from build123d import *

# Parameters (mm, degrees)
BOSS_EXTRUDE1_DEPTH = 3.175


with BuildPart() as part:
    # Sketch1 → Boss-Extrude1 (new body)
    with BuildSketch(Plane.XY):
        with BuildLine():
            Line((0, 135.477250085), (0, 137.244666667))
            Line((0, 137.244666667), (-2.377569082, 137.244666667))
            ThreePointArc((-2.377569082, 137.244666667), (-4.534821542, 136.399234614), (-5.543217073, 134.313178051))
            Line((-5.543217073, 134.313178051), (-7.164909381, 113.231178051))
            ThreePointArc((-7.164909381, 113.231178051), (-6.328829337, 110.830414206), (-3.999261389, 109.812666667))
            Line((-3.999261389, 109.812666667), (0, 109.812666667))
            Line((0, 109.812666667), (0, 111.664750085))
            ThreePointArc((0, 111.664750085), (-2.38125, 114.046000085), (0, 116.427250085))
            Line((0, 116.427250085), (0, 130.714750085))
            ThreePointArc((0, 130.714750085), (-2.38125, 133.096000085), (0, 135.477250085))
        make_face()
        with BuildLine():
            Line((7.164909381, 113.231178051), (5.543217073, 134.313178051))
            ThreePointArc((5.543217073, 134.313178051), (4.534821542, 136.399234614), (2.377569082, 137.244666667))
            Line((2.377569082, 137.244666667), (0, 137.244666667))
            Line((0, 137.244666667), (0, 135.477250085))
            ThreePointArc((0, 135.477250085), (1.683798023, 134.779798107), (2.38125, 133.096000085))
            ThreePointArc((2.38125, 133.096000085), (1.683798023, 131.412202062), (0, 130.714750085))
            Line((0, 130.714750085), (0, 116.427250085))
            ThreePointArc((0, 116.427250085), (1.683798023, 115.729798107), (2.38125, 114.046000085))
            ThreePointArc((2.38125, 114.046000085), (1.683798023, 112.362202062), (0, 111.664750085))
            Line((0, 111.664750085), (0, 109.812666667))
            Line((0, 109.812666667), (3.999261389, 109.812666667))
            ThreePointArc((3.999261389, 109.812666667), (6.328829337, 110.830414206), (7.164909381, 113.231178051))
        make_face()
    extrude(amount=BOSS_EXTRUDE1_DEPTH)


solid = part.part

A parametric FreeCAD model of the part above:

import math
import FreeCAD as App
import Part
import Sketcher
Q = App.Units.Quantity

doc = App.newDocument("Part")
params = doc.addObject("Spreadsheet::Sheet", "Params")
for row, (alias, value) in enumerate([
    ("sketch1_radius", "0.125 in"),
    ("sketch1_radius2", "0.09375 in"),
    ("pad1_length", "0.125 in"),
], start=1):
    params.set(f"A{row}", alias)
    params.set(f"B{row}", "=" + value)
    params.setAlias(f"B{row}", alias)

body = doc.addObject("PartDesign::Body", "Body")

# Sketch on XY plane
sketch1 = body.newObject("Sketcher::SketchObject", "Sketch")
sketch1.AttachmentSupport = (doc.getObject("XY_Plane"), [""])
sketch1.MapMode = "FlatFace"
sketch1.addGeometry([
    Part.ArcOfCircle(Part.Circle(App.Vector(-2.377569, 134.069667, 0), App.Vector(0, 0, 1), 3.175), math.radians(90), math.radians(175.601295)),  # 0
    Part.LineSegment(App.Vector(-5.543217, 134.313178, 0), App.Vector(-7.164909, 113.231178, 0)),  # 1
    Part.ArcOfCircle(Part.Circle(App.Vector(-3.999261, 112.987667, 0), App.Vector(0, 0, 1), 3.175), math.radians(175.601295), math.radians(270)),  # 2
    Part.LineSegment(App.Vector(-3.999261, 109.812667, 0), App.Vector(3.999261, 109.812667, 0)),  # 3
    Part.ArcOfCircle(Part.Circle(App.Vector(3.999261, 112.987667, 0), App.Vector(0, 0, 1), 3.175), math.radians(-90), math.radians(4.398705)),  # 4
    Part.LineSegment(App.Vector(7.164909, 113.231178, 0), App.Vector(5.543217, 134.313178, 0)),  # 5
    Part.ArcOfCircle(Part.Circle(App.Vector(2.377569, 134.069667, 0), App.Vector(0, 0, 1), 3.175), math.radians(4.398705), math.radians(90)),  # 6
    Part.LineSegment(App.Vector(2.377569, 137.244667, 0), App.Vector(-2.377569, 137.244667, 0)),  # 7
    Part.ArcOfCircle(Part.Circle(App.Vector(0, 114.046, 0), App.Vector(0, 0, 1), 2.38125), math.radians(90), math.radians(270)),  # 8
    Part.ArcOfCircle(Part.Circle(App.Vector(0, 114.046, 0), App.Vector(0, 0, 1), 2.38125), math.radians(0), math.radians(90)),  # 9
    Part.ArcOfCircle(Part.Circle(App.Vector(0, 114.046, 0), App.Vector(0, 0, 1), 2.38125), math.radians(-90), math.radians(0)),  # 10
    Part.ArcOfCircle(Part.Circle(App.Vector(0, 133.096, 0), App.Vector(0, 0, 1), 2.38125), math.radians(90), math.radians(270)),  # 11
    Part.ArcOfCircle(Part.Circle(App.Vector(0, 133.096, 0), App.Vector(0, 0, 1), 2.38125), math.radians(0), math.radians(90)),  # 12
    Part.ArcOfCircle(Part.Circle(App.Vector(0, 133.096, 0), App.Vector(0, 0, 1), 2.38125), math.radians(-90), math.radians(0)),  # 13
], False)
sketch1.addConstraint([
    Sketcher.Constraint("Tangent", 0, 2, 1, 1),
    Sketcher.Constraint("Tangent", 1, 2, 2, 1),
    Sketcher.Constraint("Tangent", 2, 2, 3, 1),
    Sketcher.Constraint("Tangent", 3, 2, 4, 1),
    Sketcher.Constraint("Tangent", 4, 2, 5, 1),
    Sketcher.Constraint("Tangent", 5, 2, 6, 1),
    Sketcher.Constraint("Tangent", 6, 2, 7, 1),
    Sketcher.Constraint("Tangent", 7, 2, 0, 1),
    Sketcher.Constraint("Tangent", 8, 1, 9, 2),
    Sketcher.Constraint("Tangent", 9, 1, 10, 2),
    Sketcher.Constraint("Tangent", 10, 1, 8, 2),
    Sketcher.Constraint("Tangent", 11, 1, 12, 2),
    Sketcher.Constraint("Tangent", 12, 1, 13, 2),
    Sketcher.Constraint("Tangent", 13, 1, 11, 2),
    Sketcher.Constraint("Horizontal", 3),
    Sketcher.Constraint("Horizontal", 7),
    Sketcher.Constraint("Equal", 0, 2),
    Sketcher.Constraint("Equal", 2, 4),
    Sketcher.Constraint("Equal", 4, 6),
    Sketcher.Constraint("Equal", 10, 11),
    Sketcher.Constraint("Symmetric", 1, 2, 4, 2, -2),
    Sketcher.Constraint("PointOnObject", 8, 3, -2),
    Sketcher.Constraint("PointOnObject", 11, 3, -2),
    Sketcher.Constraint("PointOnObject", 8, 1, -2),
    Sketcher.Constraint("PointOnObject", 10, 1, -2),
    Sketcher.Constraint("PointOnObject", 11, 1, -2),
    Sketcher.Constraint("PointOnObject", 13, 1, -2),
    Sketcher.Constraint("Horizontal", 10, 3, 9, 1),
    Sketcher.Constraint("Horizontal", 13, 3, 12, 1),
    Sketcher.Constraint("Radius", 0, Q("0.125 in")),
    Sketcher.Constraint("Radius", 8, Q("0.09375 in")),
    Sketcher.Constraint("DistanceY", -1, 1, 8, 3, Q("4.49 in")),
    Sketcher.Constraint("DistanceY", -1, 1, 11, 3, Q("5.24 in")),
    Sketcher.Constraint("DistanceY", 2, 3, 0, 3, Q("0.83 in")),
    Sketcher.Constraint("DistanceX", 7, 2, 7, 1, Q("4.755138 mm")),
    Sketcher.Constraint("Distance", 1, Q("21.144281 mm")),
    Sketcher.Constraint("DistanceY", -1, 1, 0, 2, Q("134.313178 mm")),
])
sketch1.setExpression("Constraints[29]", "Params.sketch1_radius")
sketch1.setExpression("Constraints[30]", "Params.sketch1_radius2")
pad1 = body.newObject("PartDesign::Pad", "Pad")
pad1.Profile = sketch1
pad1.setExpression("Length", "Params.pad1_length")

doc.recompute()
